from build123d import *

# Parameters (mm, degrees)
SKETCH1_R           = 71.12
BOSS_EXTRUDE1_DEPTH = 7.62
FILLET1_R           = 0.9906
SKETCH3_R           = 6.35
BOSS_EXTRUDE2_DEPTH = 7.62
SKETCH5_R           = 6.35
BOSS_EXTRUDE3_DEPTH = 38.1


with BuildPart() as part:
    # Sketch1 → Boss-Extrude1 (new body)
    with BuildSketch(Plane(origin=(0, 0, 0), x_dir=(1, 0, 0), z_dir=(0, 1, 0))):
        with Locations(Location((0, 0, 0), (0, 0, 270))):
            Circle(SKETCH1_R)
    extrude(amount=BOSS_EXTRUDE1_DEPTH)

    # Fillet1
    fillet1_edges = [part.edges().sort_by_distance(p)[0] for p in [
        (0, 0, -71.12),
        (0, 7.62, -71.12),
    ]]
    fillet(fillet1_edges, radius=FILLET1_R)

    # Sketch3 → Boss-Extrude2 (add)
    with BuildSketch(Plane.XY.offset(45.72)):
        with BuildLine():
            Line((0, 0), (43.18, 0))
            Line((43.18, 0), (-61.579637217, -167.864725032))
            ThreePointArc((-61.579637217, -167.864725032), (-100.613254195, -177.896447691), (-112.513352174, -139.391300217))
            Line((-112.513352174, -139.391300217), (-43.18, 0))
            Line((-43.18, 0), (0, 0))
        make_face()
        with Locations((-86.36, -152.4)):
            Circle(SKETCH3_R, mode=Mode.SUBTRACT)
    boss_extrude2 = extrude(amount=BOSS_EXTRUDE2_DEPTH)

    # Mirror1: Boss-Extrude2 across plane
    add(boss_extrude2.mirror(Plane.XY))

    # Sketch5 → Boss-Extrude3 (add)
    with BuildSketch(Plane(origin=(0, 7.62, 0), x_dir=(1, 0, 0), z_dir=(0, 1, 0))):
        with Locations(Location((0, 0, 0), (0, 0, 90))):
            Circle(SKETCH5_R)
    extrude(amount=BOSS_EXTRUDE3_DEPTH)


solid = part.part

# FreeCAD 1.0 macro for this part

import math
import FreeCAD as App
import Part
import Sketcher
from FreeCAD import Vector
Q = App.Units.Quantity


def edges_at(feature, points):
    """Names of the edges that pass closest to the given points."""
    edges = feature.Shape.Edges
    near = lambda p: min(range(len(edges)), key=lambda i: edges[i].distToShape(Part.Vertex(*p))[0])
    return sorted({f"Edge{near(p) + 1}" for p in points})

doc = App.newDocument("Part")
body = doc.addObject("PartDesign::Body", "Body")

sketch1 = body.newObject("Sketcher::SketchObject", "Sketch")
sketch1.AttachmentSupport = (doc.getObject("XZ_Plane"), [""])
sketch1.MapMode = "FlatFace"
sketch1.addGeometry(Part.Circle(Vector(0, 0, 0), Vector(0, 0, 1), 71), False)
sketch1.addConstraint(Sketcher.Constraint("Coincident", 0, 3, -1, 1))
sketch1.addConstraint(Sketcher.Constraint("Diameter", 0, Q("5.6 in")))
pad1 = body.newObject("PartDesign::Pad", "Pad")
pad1.Profile = sketch1
pad1.Length = Q("0.3 in")
pad1.Reversed = True
doc.recompute()

fillet = body.newObject("PartDesign::Fillet", "Fillet")
fillet.Base = (pad1, edges_at(pad1, [(0, 0, -71.12), (0, 7.62, -71.12)]))
fillet.Radius = Q("0.039 in")

sketch2 = body.newObject("Sketcher::SketchObject", "Sketch001")
sketch2.AttachmentSupport = (doc.getObject("XY_Plane"), [""])
sketch2.MapMode = "FlatFace"
sketch2.AttachmentOffset = App.Placement(Vector(0, 0, 1.8 * 25.4), App.Rotation())
sketch2.addGeometry(Part.LineSegment(Vector(-62, -168, 0), Vector(43, 0, 0)), False)
sketch2.addGeometry(Part.LineSegment(Vector(43, 0, 0), Vector(-43, 0, 0)), False)
sketch2.addGeometry(Part.LineSegment(Vector(-43, 0, 0), Vector(-113, -139, 0)), False)
sketch2.addGeometry(Part.ArcOfCircle(Part.Circle(Vector(-86, -152, 0), Vector(0, 0, 1), 29), math.radians(154), math.radians(328)), False)
sketch2.addGeometry(Part.Circle(Vector(-86, -152, 0), Vector(0, 0, 1), 6), False)
sketch2.addConstraint(Sketcher.Constraint("Coincident", 0, 2, 1, 1))
sketch2.addConstraint(Sketcher.Constraint("Coincident", 1, 2, 2, 1))
sketch2.addConstraint(Sketcher.Constraint("Tangent", 2, 2, 3, 1))
sketch2.addConstraint(Sketcher.Constraint("Tangent", 3, 2, 0, 1))
sketch2.addConstraint(Sketcher.Constraint("Horizontal", 1))
sketch2.addConstraint(Sketcher.Constraint("Coincident", 4, 3, 3, 3))
sketch2.addConstraint(Sketcher.Constraint("Symmetric", 0, 2, 1, 2, -1, 1))
sketch2.addConstraint(Sketcher.Constraint("Diameter", 4, Q("0.5 in")))
sketch2.addConstraint(Sketcher.Constraint("Radius", 3, Q("1.15 in")))
sketch2.addConstraint(Sketcher.Constraint("DistanceX", 1, 2, 1, 1, Q("3.4 in")))
sketch2.addConstraint(Sketcher.Constraint("DistanceY", 3, 3, -1, 1, Q("6 in")))
sketch2.addConstraint(Sketcher.Constraint("DistanceX", 3, 3, -1, 1, Q("3.4 in")))
pad2 = body.newObject("PartDesign::Pad", "Pad001")
pad2.Profile = sketch2
pad2.Length = Q("0.3 in")
doc.recompute()

mirrored = body.newObject("PartDesign::Mirrored", "Mirrored")
mirrored.Originals = [pad2]
mirrored.MirrorPlane = (doc.getObject("XY_Plane"), [""])
body.Tip = mirrored

sketch3 = body.newObject("Sketcher::SketchObject", "Sketch002")
sketch3.AttachmentSupport = (doc.getObject("XZ_Plane"), [""])
sketch3.MapMode = "FlatFace"
sketch3.AttachmentOffset = App.Placement(Vector(0, 0, -0.3 * 25.4), App.Rotation())
sketch3.addGeometry(Part.Circle(Vector(0, 0, 0), Vector(0, 0, 1), 6), False)
sketch3.addConstraint(Sketcher.Constraint("Coincident", 0, 3, -1, 1))
sketch3.addConstraint(Sketcher.Constraint("Diameter", 0, Q("0.5 in")))
pad3 = body.newObject("PartDesign::Pad", "Pad002")
pad3.Profile = sketch3
pad3.Length = Q("1.5 in")
pad3.Reversed = True

doc.recompute()
